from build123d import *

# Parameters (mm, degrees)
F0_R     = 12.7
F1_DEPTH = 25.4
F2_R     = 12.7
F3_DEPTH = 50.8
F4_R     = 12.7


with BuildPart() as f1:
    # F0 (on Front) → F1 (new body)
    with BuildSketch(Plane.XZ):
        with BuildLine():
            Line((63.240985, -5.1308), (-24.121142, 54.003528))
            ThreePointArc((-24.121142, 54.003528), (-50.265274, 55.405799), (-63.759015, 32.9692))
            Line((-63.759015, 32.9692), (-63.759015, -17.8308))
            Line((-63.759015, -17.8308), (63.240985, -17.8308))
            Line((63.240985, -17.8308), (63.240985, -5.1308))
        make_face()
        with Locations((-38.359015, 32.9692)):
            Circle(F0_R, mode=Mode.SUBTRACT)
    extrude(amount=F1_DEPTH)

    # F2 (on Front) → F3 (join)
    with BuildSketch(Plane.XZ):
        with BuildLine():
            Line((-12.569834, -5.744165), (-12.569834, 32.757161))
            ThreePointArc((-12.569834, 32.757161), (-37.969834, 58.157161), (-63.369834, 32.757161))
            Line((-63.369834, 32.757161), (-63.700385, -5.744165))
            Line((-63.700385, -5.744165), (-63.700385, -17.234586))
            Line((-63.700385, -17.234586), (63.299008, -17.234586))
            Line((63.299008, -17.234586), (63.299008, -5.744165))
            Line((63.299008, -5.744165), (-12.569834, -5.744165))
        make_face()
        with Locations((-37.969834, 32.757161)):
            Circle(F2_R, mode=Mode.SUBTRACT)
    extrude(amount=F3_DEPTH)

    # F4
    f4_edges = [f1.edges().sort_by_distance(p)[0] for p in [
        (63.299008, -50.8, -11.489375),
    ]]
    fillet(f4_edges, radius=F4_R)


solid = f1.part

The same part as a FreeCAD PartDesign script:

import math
import FreeCAD as App
import Part
import Sketcher
Q = App.Units.Quantity


def edges_at(feature, points):
    """Names of the edges that pass closest to the given points."""
    edges = feature.Shape.Edges
    near = lambda p: min(range(len(edges)), key=lambda i: edges[i].distToShape(Part.Vertex(*p))[0])
    return sorted({f"Edge{near(p) + 1}" for p in points})

doc = App.newDocument("Part")
body = doc.addObject("PartDesign::Body", "Body")

# Sketch on XZ plane
sketch1 = body.newObject("Sketcher::SketchObject", "Sketch")
sketch1.AttachmentSupport = (doc.getObject("XZ_Plane"), [""])
sketch1.MapMode = "FlatFace"
sketch1.addGeometry(Part.LineSegment(App.Vector(63, -5, 0), App.Vector(-24, 54, 0)), False)
sketch1.addGeometry(Part.ArcOfCircle(Part.Circle(App.Vector(-38, 33, 0), App.Vector(0, 0, 1), 25), math.radians(56), math.radians(180)), False)
sketch1.addGeometry(Part.LineSegment(App.Vector(-64, 33, 0), App.Vector(-64, -18, 0)), False)
sketch1.addGeometry(Part.LineSegment(App.Vector(-64, -18, 0), App.Vector(63, -18, 0)), False)
sketch1.addGeometry(Part.LineSegment(App.Vector(63, -18, 0), App.Vector(63, -5, 0)), False)
sketch1.addGeometry(Part.Circle(App.Vector(-38, 33, 0), App.Vector(0, 0, 1), 13), False)
sketch1.addConstraint(Sketcher.Constraint("Tangent", 0, 2, 1, 1))
sketch1.addConstraint(Sketcher.Constraint("Tangent", 1, 2, 2, 1))
sketch1.addConstraint(Sketcher.Constraint("Coincident", 2, 2, 3, 1))
sketch1.addConstraint(Sketcher.Constraint("Coincident", 3, 2, 4, 1))
sketch1.addConstraint(Sketcher.Constraint("Coincident", 4, 2, 0, 1))
sketch1.addConstraint(Sketcher.Constraint("Vertical", 2))
sketch1.addConstraint(Sketcher.Constraint("Horizontal", 3))
sketch1.addConstraint(Sketcher.Constraint("Vertical", 4))
sketch1.addConstraint(Sketcher.Constraint("Coincident", 5, 3, 1, 3))
sketch1.addConstraint(Sketcher.Constraint("Diameter", 5, Q("1 in")))
sketch1.addConstraint(Sketcher.Constraint("Radius", 1, Q("1 in")))
sketch1.addConstraint(Sketcher.Constraint("DistanceX", 3, 1, 3, 2, Q("5 in")))
sketch1.addConstraint(Sketcher.Constraint("DistanceY", 2, 2, 2, 1, Q("2 in")))
sketch1.addConstraint(Sketcher.Constraint("DistanceY", 4, 1, 4, 2, Q("0.5 in")))
sketch1.addConstraint(Sketcher.Constraint("DistanceY", -1, 1, 1, 3, Q("1.298 in")))
sketch1.addConstraint(Sketcher.Constraint("DistanceX", 0, 2, -1, 1, Q("24.121142 mm")))
pad1 = body.newObject("PartDesign::Pad", "Pad")
pad1.Profile = sketch1
pad1.Length = Q("1 in")

# Sketch on XZ plane
sketch2 = body.newObject("Sketcher::SketchObject", "Sketch001")
sketch2.AttachmentSupport = (doc.getObject("XZ_Plane"), [""])
sketch2.MapMode = "FlatFace"
sketch2.addGeometry(Part.LineSegment(App.Vector(-13, -6, 0), App.Vector(-13, 33, 0)), False)
sketch2.addGeometry(Part.ArcOfCircle(Part.Circle(App.Vector(-38, 33, 0), App.Vector(0, 0, 1), 25), math.radians(0), math.radians(180)), False)
sketch2.addGeometry(Part.LineSegment(App.Vector(-63, 33, 0), App.Vector(-64, -6, 0)), False)
sketch2.addGeometry(Part.LineSegment(App.Vector(-64, -6, 0), App.Vector(-64, -17, 0)), False)
sketch2.addGeometry(Part.LineSegment(App.Vector(-64, -17, 0), App.Vector(63, -17, 0)), False)
sketch2.addGeometry(Part.LineSegment(App.Vector(63, -17, 0), App.Vector(63, -6, 0)), False)
sketch2.addGeometry(Part.LineSegment(App.Vector(63, -6, 0), App.Vector(-13, -6, 0)), False)
sketch2.addGeometry(Part.Circle(App.Vector(-38, 33, 0), App.Vector(0, 0, 1), 13), False)
sketch2.addConstraint(Sketcher.Constraint("Tangent", 0, 2, 1, 1))
sketch2.addConstraint(Sketcher.Constraint("Coincident", 1, 2, 2, 1))
sketch2.addConstraint(Sketcher.Constraint("Coincident", 2, 2, 3, 1))
sketch2.addConstraint(Sketcher.Constraint("Coincident", 3, 2, 4, 1))
sketch2.addConstraint(Sketcher.Constraint("Coincident", 4, 2, 5, 1))
sketch2.addConstraint(Sketcher.Constraint("Coincident", 5, 2, 6, 1))
sketch2.addConstraint(Sketcher.Constraint("Coincident", 6, 2, 0, 1))
sketch2.addConstraint(Sketcher.Constraint("Vertical", 0))
sketch2.addConstraint(Sketcher.Constraint("Vertical", 3))
sketch2.addConstraint(Sketcher.Constraint("Horizontal", 4))
sketch2.addConstraint(Sketcher.Constraint("Vertical", 5))
sketch2.addConstraint(Sketcher.Constraint("Horizontal", 6))
sketch2.addConstraint(Sketcher.Constraint("Coincident", 7, 3, 1, 3))
sketch2.addConstraint(Sketcher.Constraint("Horizontal", 0, 2, 1, 2))
sketch2.addConstraint(Sketcher.Constraint("Horizontal", 2, 2, 5, 2))
sketch2.addConstraint(Sketcher.Constraint("Diameter", 7, Q("1 in")))
sketch2.addConstraint(Sketcher.Constraint("Radius", 1, Q("1 in")))
sketch2.addConstraint(Sketcher.Constraint("DistanceX", 6, 2, 6, 1, Q("75.868842 mm")))
sketch2.addConstraint(Sketcher.Constraint("DistanceY", 3, 2, 3, 1, Q("11.490421 mm")))
sketch2.addConstraint(Sketcher.Constraint("DistanceX", 4, 1, 4, 2, Q("126.999393 mm")))
sketch2.addConstraint(Sketcher.Constraint("DistanceY", 0, 1, 0, 2, Q("38.501326 mm")))
sketch2.addConstraint(Sketcher.Constraint("DistanceY", -1, 1, 1, 3, Q("32.757161 mm")))
sketch2.addConstraint(Sketcher.Constraint("DistanceX", 1, 3, -1, 1, Q("37.969834 mm")))
pad2 = body.newObject("PartDesign::Pad", "Pad001")
pad2.Profile = sketch2
pad2.Length = Q("2 in")
doc.recompute()

fillet = body.newObject("PartDesign::Fillet", "Fillet")
fillet.Base = (pad2, edges_at(pad2, [(63.299, -50.8, -11.489)]))
fillet.Radius = Q("0.5 in")

doc.recompute()
